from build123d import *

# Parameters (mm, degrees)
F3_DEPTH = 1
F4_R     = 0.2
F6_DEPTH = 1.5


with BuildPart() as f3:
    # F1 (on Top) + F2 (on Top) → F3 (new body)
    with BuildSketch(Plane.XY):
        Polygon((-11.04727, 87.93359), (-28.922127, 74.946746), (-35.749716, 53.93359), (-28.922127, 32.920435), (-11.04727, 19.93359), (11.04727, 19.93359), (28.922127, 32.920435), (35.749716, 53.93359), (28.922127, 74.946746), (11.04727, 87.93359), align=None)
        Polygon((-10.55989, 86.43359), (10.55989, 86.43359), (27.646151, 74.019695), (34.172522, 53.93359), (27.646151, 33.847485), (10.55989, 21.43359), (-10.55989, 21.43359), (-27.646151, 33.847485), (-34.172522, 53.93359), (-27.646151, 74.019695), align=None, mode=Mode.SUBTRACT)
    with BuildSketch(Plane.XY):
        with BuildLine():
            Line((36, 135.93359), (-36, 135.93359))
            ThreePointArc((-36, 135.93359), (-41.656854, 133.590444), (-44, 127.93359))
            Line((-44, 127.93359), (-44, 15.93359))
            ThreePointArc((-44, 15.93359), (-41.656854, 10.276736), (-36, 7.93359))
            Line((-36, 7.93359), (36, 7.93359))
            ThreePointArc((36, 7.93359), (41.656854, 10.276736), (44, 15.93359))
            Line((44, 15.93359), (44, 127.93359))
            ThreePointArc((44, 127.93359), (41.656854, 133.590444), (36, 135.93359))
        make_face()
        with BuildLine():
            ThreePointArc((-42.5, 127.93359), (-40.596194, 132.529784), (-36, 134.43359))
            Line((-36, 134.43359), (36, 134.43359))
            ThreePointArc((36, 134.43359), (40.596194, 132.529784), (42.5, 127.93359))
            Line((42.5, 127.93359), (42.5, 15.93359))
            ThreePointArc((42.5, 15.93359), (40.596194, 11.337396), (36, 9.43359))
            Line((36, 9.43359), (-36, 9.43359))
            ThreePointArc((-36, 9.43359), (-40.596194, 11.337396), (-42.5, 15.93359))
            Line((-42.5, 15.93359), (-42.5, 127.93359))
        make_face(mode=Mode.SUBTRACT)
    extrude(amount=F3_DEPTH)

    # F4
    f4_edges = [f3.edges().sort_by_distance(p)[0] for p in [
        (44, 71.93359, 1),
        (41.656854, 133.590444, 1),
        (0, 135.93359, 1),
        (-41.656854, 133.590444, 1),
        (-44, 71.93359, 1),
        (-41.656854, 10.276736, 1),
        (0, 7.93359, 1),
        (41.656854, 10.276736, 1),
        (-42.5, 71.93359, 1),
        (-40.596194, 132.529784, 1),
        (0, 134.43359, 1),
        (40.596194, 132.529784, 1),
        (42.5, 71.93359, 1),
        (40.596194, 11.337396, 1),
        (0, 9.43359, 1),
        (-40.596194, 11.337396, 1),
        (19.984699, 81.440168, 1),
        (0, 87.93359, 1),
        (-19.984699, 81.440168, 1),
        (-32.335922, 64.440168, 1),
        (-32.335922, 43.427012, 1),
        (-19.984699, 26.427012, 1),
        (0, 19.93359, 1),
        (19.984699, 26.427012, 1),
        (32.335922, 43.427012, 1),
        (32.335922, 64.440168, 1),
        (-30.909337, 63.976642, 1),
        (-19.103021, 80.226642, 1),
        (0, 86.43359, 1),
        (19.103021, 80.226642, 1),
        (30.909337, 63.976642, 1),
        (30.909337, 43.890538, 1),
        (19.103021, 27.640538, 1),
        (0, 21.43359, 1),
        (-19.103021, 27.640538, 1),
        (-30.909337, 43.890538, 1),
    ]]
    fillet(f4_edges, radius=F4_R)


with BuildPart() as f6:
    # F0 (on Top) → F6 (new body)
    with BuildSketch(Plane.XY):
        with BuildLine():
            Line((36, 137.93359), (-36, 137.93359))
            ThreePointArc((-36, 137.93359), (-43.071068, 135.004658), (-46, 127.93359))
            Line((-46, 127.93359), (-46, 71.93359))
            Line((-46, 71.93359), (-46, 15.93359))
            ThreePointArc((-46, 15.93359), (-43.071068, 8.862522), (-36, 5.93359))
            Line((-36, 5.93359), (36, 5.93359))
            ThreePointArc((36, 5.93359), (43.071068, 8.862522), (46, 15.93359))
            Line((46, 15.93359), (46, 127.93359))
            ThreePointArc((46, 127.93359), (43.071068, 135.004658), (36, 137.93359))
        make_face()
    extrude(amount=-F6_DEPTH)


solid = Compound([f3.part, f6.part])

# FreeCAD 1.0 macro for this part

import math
import FreeCAD as App
import Part
import Sketcher
from FreeCAD import Vector
Q = App.Units.Quantity


def edges_at(feature, points):
    """Names of the edges that pass closest to the given points."""
    edges = feature.Shape.Edges
    near = lambda p: min(range(len(edges)), key=lambda i: edges[i].distToShape(Part.Vertex(*p))[0])
    return sorted({f"Edge{near(p) + 1}" for p in points})

doc = App.newDocument("Part")
body = doc.addObject("PartDesign::Body", "Body")
body.AllowCompound = True

# Sketch on XY plane
sketch1 = body.newObject("Sketcher::SketchObject", "Sketch")
sketch1.AttachmentSupport = (doc.getObject("XY_Plane"), [""])
sketch1.MapMode = "FlatFace"
sketch1.addGeometry(Part.LineSegment(Vector(-11.04727, 87.93359, 0), Vector(-28.922127, 74.946746, 0)), False)
sketch1.addGeometry(Part.LineSegment(Vector(-28.922127, 74.946746, 0), Vector(-35.749716, 53.93359, 0)), False)
sketch1.addGeometry(Part.LineSegment(Vector(-35.749716, 53.93359, 0), Vector(-28.922127, 32.920435, 0)), False)
sketch1.addGeometry(Part.LineSegment(Vector(-28.922127, 32.920435, 0), Vector(-11.04727, 19.93359, 0)), False)
sketch1.addGeometry(Part.LineSegment(Vector(-11.04727, 19.93359, 0), Vector(11.04727, 19.93359, 0)), False)
sketch1.addGeometry(Part.LineSegment(Vector(11.04727, 19.93359, 0), Vector(28.922127, 32.920435, 0)), False)
sketch1.addGeometry(Part.LineSegment(Vector(28.922127, 32.920435, 0), Vector(35.749716, 53.93359, 0)), False)
sketch1.addGeometry(Part.LineSegment(Vector(35.749716, 53.93359, 0), Vector(28.922127, 74.946746, 0)), False)
sketch1.addGeometry(Part.LineSegment(Vector(28.922127, 74.946746, 0), Vector(11.04727, 87.93359, 0)), False)
sketch1.addGeometry(Part.LineSegment(Vector(11.04727, 87.93359, 0), Vector(-11.04727, 87.93359, 0)), False)
sketch1.addGeometry(Part.LineSegment(Vector(-27.646151, 74.019695, 0), Vector(-10.55989, 86.43359, 0)), False)
sketch1.addGeometry(Part.LineSegment(Vector(-10.55989, 86.43359, 0), Vector(10.55989, 86.43359, 0)), False)
sketch1.addGeometry(Part.LineSegment(Vector(10.55989, 86.43359, 0), Vector(27.646151, 74.019695, 0)), False)
sketch1.addGeometry(Part.LineSegment(Vector(27.646151, 74.019695, 0), Vector(34.172522, 53.93359, 0)), False)
sketch1.addGeometry(Part.LineSegment(Vector(34.172522, 53.93359, 0), Vector(27.646151, 33.847485, 0)), False)
sketch1.addGeometry(Part.LineSegment(Vector(27.646151, 33.847485, 0), Vector(10.55989, 21.43359, 0)), False)
sketch1.addGeometry(Part.LineSegment(Vector(10.55989, 21.43359, 0), Vector(-10.55989, 21.43359, 0)), False)
sketch1.addGeometry(Part.LineSegment(Vector(-10.55989, 21.43359, 0), Vector(-27.646151, 33.847485, 0)), False)
sketch1.addGeometry(Part.LineSegment(Vector(-27.646151, 33.847485, 0), Vector(-34.172522, 53.93359, 0)), False)
sketch1.addGeometry(Part.LineSegment(Vector(-34.172522, 53.93359, 0), Vector(-27.646151, 74.019695, 0)), False)
sketch1.addGeometry(Part.LineSegment(Vector(36, 135.93359, 0), Vector(-36, 135.93359, 0)), False)
sketch1.addGeometry(Part.ArcOfCircle(Part.Circle(Vector(-35.999999, 127.933589, 0), Vector(0, 0, 1), 8.000001), math.radians(90.000006), math.radians(179.999994)), False)
sketch1.addGeometry(Part.LineSegment(Vector(-44, 127.93359, 0), Vector(-44, 15.93359, 0)), False)
sketch1.addGeometry(Part.ArcOfCircle(Part.Circle(Vector(-35.999999, 15.933591, 0), Vector(0, 0, 1), 8.000001), math.radians(-179.999994), math.radians(-90.000006)), False)
sketch1.addGeometry(Part.LineSegment(Vector(-36, 7.93359, 0), Vector(36, 7.93359, 0)), False)
sketch1.addGeometry(Part.ArcOfCircle(Part.Circle(Vector(35.999999, 15.933591, 0), Vector(0, 0, 1), 8.000001), math.radians(-89.999994), math.radians(-0.000006)), False)
sketch1.addGeometry(Part.LineSegment(Vector(44, 15.93359, 0), Vector(44, 127.93359, 0)), False)
sketch1.addGeometry(Part.ArcOfCircle(Part.Circle(Vector(35.999999, 127.933589, 0), Vector(0, 0, 1), 8.000001), math.radians(0.000006), math.radians(89.999994)), False)
sketch1.addGeometry(Part.LineSegment(Vector(-42.5, 15.93359, 0), Vector(-42.5, 127.93359, 0)), False)
sketch1.addGeometry(Part.ArcOfCircle(Part.Circle(Vector(-36, 127.93359, 0), Vector(0, 0, 1), 6.5), math.radians(90.000002), math.radians(179.999998)), False)
sketch1.addGeometry(Part.LineSegment(Vector(-36, 134.43359, 0), Vector(36, 134.43359, 0)), False)
sketch1.addGeometry(Part.ArcOfCircle(Part.Circle(Vector(36, 127.93359, 0), Vector(0, 0, 1), 6.5), math.radians(0.000002), math.radians(89.999998)), False)
sketch1.addGeometry(Part.LineSegment(Vector(42.5, 127.93359, 0), Vector(42.5, 15.93359, 0)), False)
sketch1.addGeometry(Part.ArcOfCircle(Part.Circle(Vector(36, 15.93359, 0), Vector(0, 0, 1), 6.5), math.radians(-89.999998), math.radians(-0.000002)), False)
sketch1.addGeometry(Part.LineSegment(Vector(36, 9.43359, 0), Vector(-36, 9.43359, 0)), False)
sketch1.addGeometry(Part.ArcOfCircle(Part.Circle(Vector(-36, 15.93359, 0), Vector(0, 0, 1), 6.5), math.radians(-179.999998), math.radians(-90.000002)), False)
sketch1.addConstraint(Sketcher.Constraint("Coincident", 0, 2, 1, 1))
sketch1.addConstraint(Sketcher.Constraint("Coincident", 1, 2, 2, 1))
sketch1.addConstraint(Sketcher.Constraint("Coincident", 2, 2, 3, 1))
sketch1.addConstraint(Sketcher.Constraint("Coincident", 3, 2, 4, 1))
sketch1.addConstraint(Sketcher.Constraint("Coincident", 4, 2, 5, 1))
sketch1.addConstraint(Sketcher.Constraint("Coincident", 5, 2, 6, 1))
sketch1.addConstraint(Sketcher.Constraint("Coincident", 6, 2, 7, 1))
sketch1.addConstraint(Sketcher.Constraint("Coincident", 7, 2, 8, 1))
sketch1.addConstraint(Sketcher.Constraint("Coincident", 8, 2, 9, 1))
sketch1.addConstraint(Sketcher.Constraint("Coincident", 9, 2, 0, 1))
sketch1.addConstraint(Sketcher.Constraint("Coincident", 10, 2, 11, 1))
sketch1.addConstraint(Sketcher.Constraint("Coincident", 11, 2, 12, 1))
sketch1.addConstraint(Sketcher.Constraint("Coincident", 12, 2, 13, 1))
sketch1.addConstraint(Sketcher.Constraint("Coincident", 13, 2, 14, 1))
sketch1.addConstraint(Sketcher.Constraint("Coincident", 14, 2, 15, 1))
sketch1.addConstraint(Sketcher.Constraint("Coincident", 15, 2, 16, 1))
sketch1.addConstraint(Sketcher.Constraint("Coincident", 16, 2, 17, 1))
sketch1.addConstraint(Sketcher.Constraint("Coincident", 17, 2, 18, 1))
sketch1.addConstraint(Sketcher.Constraint("Coincident", 18, 2, 19, 1))
sketch1.addConstraint(Sketcher.Constraint("Coincident", 19, 2, 10, 1))
sketch1.addConstraint(Sketcher.Constraint("Tangent", 20, 2, 21, 1))
sketch1.addConstraint(Sketcher.Constraint("Tangent", 21, 2, 22, 1))
sketch1.addConstraint(Sketcher.Constraint("Tangent", 22, 2, 23, 1))
sketch1.addConstraint(Sketcher.Constraint("Tangent", 23, 2, 24, 1))
sketch1.addConstraint(Sketcher.Constraint("Tangent", 24, 2, 25, 1))
sketch1.addConstraint(Sketcher.Constraint("Tangent", 25, 2, 26, 1))
sketch1.addConstraint(Sketcher.Constraint("Tangent", 26, 2, 27, 1))
sketch1.addConstraint(Sketcher.Constraint("Tangent", 27, 2, 20, 1))
sketch1.addConstraint(Sketcher.Constraint("Tangent", 28, 2, 29, 2))
sketch1.addConstraint(Sketcher.Constraint("Tangent", 29, 1, 30, 1))
sketch1.addConstraint(Sketcher.Constraint("Tangent", 30, 2, 31, 2))
sketch1.addConstraint(Sketcher.Constraint("Tangent", 31, 1, 32, 1))
sketch1.addConstraint(Sketcher.Constraint("Tangent", 32, 2, 33, 2))
sketch1.addConstraint(Sketcher.Constraint("Tangent", 33, 1, 34, 1))
sketch1.addConstraint(Sketcher.Constraint("Tangent", 34, 2, 35, 2))
sketch1.addConstraint(Sketcher.Constraint("Tangent", 35, 1, 28, 1))
sketch1.addConstraint(Sketcher.Constraint("Horizontal", 4))
sketch1.addConstraint(Sketcher.Constraint("Horizontal", 9))
sketch1.addConstraint(Sketcher.Constraint("Horizontal", 11))
sketch1.addConstraint(Sketcher.Constraint("Horizontal", 16))
sketch1.addConstraint(Sketcher.Constraint("Horizontal", 20))
sketch1.addConstraint(Sketcher.Constraint("Vertical", 22))
sketch1.addConstraint(Sketcher.Constraint("Horizontal", 24))
sketch1.addConstraint(Sketcher.Constraint("Vertical", 26))
sketch1.addConstraint(Sketcher.Constraint("Vertical", 28))
sketch1.addConstraint(Sketcher.Constraint("Horizontal", 30))
sketch1.addConstraint(Sketcher.Constraint("Vertical", 32))
sketch1.addConstraint(Sketcher.Constraint("Horizontal", 34))
sketch1.addConstraint(Sketcher.Constraint("Coincident", 29, 3, 21, 3))
sketch1.addConstraint(Sketcher.Constraint("Coincident", 31, 3, 27, 3))
sketch1.addConstraint(Sketcher.Constraint("Coincident", 33, 3, 25, 3))
sketch1.addConstraint(Sketcher.Constraint("Equal", 21, 23))
sketch1.addConstraint(Sketcher.Constraint("Equal", 23, 25))
sketch1.addConstraint(Sketcher.Constraint("Equal", 25, 27))
sketch1.addConstraint(Sketcher.Constraint("Equal", 33, 35))
sketch1.addConstraint(Sketcher.Constraint("Symmetric", 2, 2, 5, 2, -2))
sketch1.addConstraint(Sketcher.Constraint("Symmetric", 1, 2, 6, 2, -2))
sketch1.addConstraint(Sketcher.Constraint("Symmetric", 0, 2, 7, 2, -2))
sketch1.addConstraint(Sketcher.Constraint("Symmetric", 14, 2, 17, 2, -2))
sketch1.addConstraint(Sketcher.Constraint("Symmetric", 13, 2, 18, 2, -2))
sketch1.addConstraint(Sketcher.Constraint("Symmetric", 12, 2, 19, 2, -2))
sketch1.addConstraint(Sketcher.Constraint("Parallel", 0, 5))
sketch1.addConstraint(Sketcher.Constraint("Parallel", 1, 6))
sketch1.addConstraint(Sketcher.Constraint("Parallel", 3, 8))
sketch1.addConstraint(Sketcher.Constraint("Parallel", 5, 10))
sketch1.addConstraint(Sketcher.Constraint("Parallel", 8, 12))
sketch1.addConstraint(Sketcher.Constraint("Parallel", 7, 13))
sketch1.addConstraint(Sketcher.Constraint("Parallel", 6, 14))
sketch1.addConstraint(Sketcher.Constraint("Parallel", 10, 15))
sketch1.addConstraint(Sketcher.Constraint("Parallel", 12, 17))
sketch1.addConstraint(Sketcher.Constraint("Horizontal", 6, 2, 13, 2))
sketch1.addConstraint(Sketcher.Constraint("Vertical", 0, 2, 2, 2))
sketch1.addConstraint(Sketcher.Constraint("Vertical", 4, 2, 8, 2))
sketch1.addConstraint(Sketcher.Constraint("Vertical", 3, 2, 9, 2))
sketch1.addConstraint(Sketcher.Constraint("Vertical", 12, 2, 14, 2))
sketch1.addConstraint(Sketcher.Constraint("Vertical", 11, 2, 15, 2))
sketch1.addConstraint(Sketcher.Constraint("Equal", 0, 1))
sketch1.addConstraint(Sketcher.Constraint("Equal", 12, 13))
sketch1.addConstraint(Sketcher.Constraint("Radius", 21, Q("8.000001 mm")))
sketch1.addConstraint(Sketcher.Constraint("Radius", 29, Q("6.5 mm")))
sketch1.addConstraint(Sketcher.Constraint("DistanceX", 20, 2, 20, 1, Q("72 mm")))
sketch1.addConstraint(Sketcher.Constraint("DistanceY", 22, 2, 22, 1, Q("112 mm")))
sketch1.addConstraint(Sketcher.Constraint("Angle", 0, Q("-144 deg")))
sketch1.addConstraint(Sketcher.Constraint("Angle", 1, Q("-108.000002 deg")))
sketch1.addConstraint(Sketcher.Constraint("DistanceX", 21, 3, -1, 1, Q("35.999999 mm")))
sketch1.addConstraint(Sketcher.Constraint("DistanceY", 23, 3, 1, 2, Q("37.999999 mm")))
sketch1.addConstraint(Sketcher.Constraint("DistanceY", 23, 3, 3, 2, Q("3.999999 mm")))
sketch1.addConstraint(Sketcher.Constraint("DistanceY", 10, 2, 9, 2, Q("1.5 mm")))
sketch1.addConstraint(Sketcher.Constraint("DistanceX", 4, 1, 4, 2, Q("22.09454 mm")))
sketch1.addConstraint(Sketcher.Constraint("DistanceX", 11, 1, 11, 2, Q("21.11978 mm")))
sketch1.addConstraint(Sketcher.Constraint("DistanceY", -1, 1, 21, 3, Q("127.933589 mm")))
pad1 = body.newObject("PartDesign::Pad", "Pad")
pad1.Profile = sketch1
pad1.Length = 1
doc.recompute()

fillet = body.newObject("PartDesign::Fillet", "Fillet")
fillet.Base = (pad1, edges_at(pad1, [
    (44, 71.934, 1),
    (41.657, 133.59, 1),
    (0, 135.934, 1),
    (-41.657, 133.59, 1),
    (-44, 71.934, 1),
    (-41.657, 10.277, 1),
    (0, 7.934, 1),
    (41.657, 10.277, 1),
    (-42.5, 71.934, 1),
    (-40.596, 132.53, 1),
    (0, 134.434, 1),
    (40.596, 132.53, 1),
    (42.5, 71.934, 1),
    (40.596, 11.337, 1),
    (0, 9.434, 1),
    (-40.596, 11.337, 1),
    (19.985, 81.44, 1),
    (0, 87.934, 1),
    (-19.985, 81.44, 1),
    (-32.336, 64.44, 1),
    (-32.336, 43.427, 1),
    (-19.985, 26.427, 1),
    (0, 19.934, 1),
    (19.985, 26.427, 1),
    (32.336, 43.427, 1),
    (32.336, 64.44, 1),
    (-30.909, 63.977, 1),
    (-19.103, 80.227, 1),
    (0, 86.434, 1),
    (19.103, 80.227, 1),
    (30.909, 63.977, 1),
    (30.909, 43.891, 1),
    (19.103, 27.641, 1),
    (0, 21.434, 1),
    (-19.103, 27.641, 1),
    (-30.909, 43.891, 1),
]))
fillet.Radius = 0.2
body2 = doc.addObject("PartDesign::Body", "Body001")

# Sketch on XY plane
sketch2 = body2.newObject("Sketcher::SketchObject", "Sketch001")
sketch2.AttachmentSupport = (doc.getObject("XY_Plane001"), [""])
sketch2.MapMode = "FlatFace"
sketch2.addGeometry(Part.LineSegment(Vector(36, 137.93359, 0), Vector(-36, 137.93359, 0)), False)
sketch2.addGeometry(Part.ArcOfCircle(Part.Circle(Vector(-36.000001, 127.933591, 0), Vector(0, 0, 1), 9.999999), math.radians(89.999996), math.radians(180.000004)), False)
sketch2.addGeometry(Part.LineSegment(Vector(-46, 127.93359, 0), Vector(-46, 15.93359, 0)), False)
sketch2.addGeometry(Part.ArcOfCircle(Part.Circle(Vector(-36.000001, 15.933589, 0), Vector(0, 0, 1), 9.999999), math.radians(179.999996), math.radians(270.000004)), False)
sketch2.addGeometry(Part.LineSegment(Vector(-36, 5.93359, 0), Vector(36, 5.93359, 0)), False)
sketch2.addGeometry(Part.ArcOfCircle(Part.Circle(Vector(36.000001, 15.933589, 0), Vector(0, 0, 1), 9.999999), math.radians(-90.000004), math.radians(0.000004)), False)
sketch2.addGeometry(Part.LineSegment(Vector(46, 15.93359, 0), Vector(46, 127.93359, 0)), False)
sketch2.addGeometry(Part.ArcOfCircle(Part.Circle(Vector(36.000001, 127.933591, 0), Vector(0, 0, 1), 9.999999), math.radians(-0.000004), math.radians(90.000004)), False)
sketch2.addConstraint(Sketcher.Constraint("Tangent", 0, 2, 1, 1))
sketch2.addConstraint(Sketcher.Constraint("Tangent", 1, 2, 2, 1))
sketch2.addConstraint(Sketcher.Constraint("Tangent", 2, 2, 3, 1))
sketch2.addConstraint(Sketcher.Constraint("Tangent", 3, 2, 4, 1))
sketch2.addConstraint(Sketcher.Constraint("Tangent", 4, 2, 5, 1))
sketch2.addConstraint(Sketcher.Constraint("Tangent", 5, 2, 6, 1))
sketch2.addConstraint(Sketcher.Constraint("Tangent", 6, 2, 7, 1))
sketch2.addConstraint(Sketcher.Constraint("Tangent", 7, 2, 0, 1))
sketch2.addConstraint(Sketcher.Constraint("Horizontal", 0))
sketch2.addConstraint(Sketcher.Constraint("Vertical", 2))
sketch2.addConstraint(Sketcher.Constraint("Horizontal", 4))
sketch2.addConstraint(Sketcher.Constraint("Vertical", 6))
sketch2.addConstraint(Sketcher.Constraint("Equal", 1, 3))
sketch2.addConstraint(Sketcher.Constraint("Equal", 3, 5))
sketch2.addConstraint(Sketcher.Constraint("Equal", 5, 7))
sketch2.addConstraint(Sketcher.Constraint("Radius", 1, Q("9.999999 mm")))
sketch2.addConstraint(Sketcher.Constraint("DistanceX", 0, 2, 0, 1, Q("72 mm")))
sketch2.addConstraint(Sketcher.Constraint("DistanceY", 2, 2, 2, 1, Q("112 mm")))
sketch2.addConstraint(Sketcher.Constraint("DistanceX", 1, 3, -1, 1, Q("36.000001 mm")))
sketch2.addConstraint(Sketcher.Constraint("DistanceY", -1, 1, 1, 3, Q("127.933591 mm")))
pad2 = body2.newObject("PartDesign::Pad", "Pad001")
pad2.Profile = sketch2
pad2.Length = 1.5
pad2.Reversed = True

doc.recompute()
